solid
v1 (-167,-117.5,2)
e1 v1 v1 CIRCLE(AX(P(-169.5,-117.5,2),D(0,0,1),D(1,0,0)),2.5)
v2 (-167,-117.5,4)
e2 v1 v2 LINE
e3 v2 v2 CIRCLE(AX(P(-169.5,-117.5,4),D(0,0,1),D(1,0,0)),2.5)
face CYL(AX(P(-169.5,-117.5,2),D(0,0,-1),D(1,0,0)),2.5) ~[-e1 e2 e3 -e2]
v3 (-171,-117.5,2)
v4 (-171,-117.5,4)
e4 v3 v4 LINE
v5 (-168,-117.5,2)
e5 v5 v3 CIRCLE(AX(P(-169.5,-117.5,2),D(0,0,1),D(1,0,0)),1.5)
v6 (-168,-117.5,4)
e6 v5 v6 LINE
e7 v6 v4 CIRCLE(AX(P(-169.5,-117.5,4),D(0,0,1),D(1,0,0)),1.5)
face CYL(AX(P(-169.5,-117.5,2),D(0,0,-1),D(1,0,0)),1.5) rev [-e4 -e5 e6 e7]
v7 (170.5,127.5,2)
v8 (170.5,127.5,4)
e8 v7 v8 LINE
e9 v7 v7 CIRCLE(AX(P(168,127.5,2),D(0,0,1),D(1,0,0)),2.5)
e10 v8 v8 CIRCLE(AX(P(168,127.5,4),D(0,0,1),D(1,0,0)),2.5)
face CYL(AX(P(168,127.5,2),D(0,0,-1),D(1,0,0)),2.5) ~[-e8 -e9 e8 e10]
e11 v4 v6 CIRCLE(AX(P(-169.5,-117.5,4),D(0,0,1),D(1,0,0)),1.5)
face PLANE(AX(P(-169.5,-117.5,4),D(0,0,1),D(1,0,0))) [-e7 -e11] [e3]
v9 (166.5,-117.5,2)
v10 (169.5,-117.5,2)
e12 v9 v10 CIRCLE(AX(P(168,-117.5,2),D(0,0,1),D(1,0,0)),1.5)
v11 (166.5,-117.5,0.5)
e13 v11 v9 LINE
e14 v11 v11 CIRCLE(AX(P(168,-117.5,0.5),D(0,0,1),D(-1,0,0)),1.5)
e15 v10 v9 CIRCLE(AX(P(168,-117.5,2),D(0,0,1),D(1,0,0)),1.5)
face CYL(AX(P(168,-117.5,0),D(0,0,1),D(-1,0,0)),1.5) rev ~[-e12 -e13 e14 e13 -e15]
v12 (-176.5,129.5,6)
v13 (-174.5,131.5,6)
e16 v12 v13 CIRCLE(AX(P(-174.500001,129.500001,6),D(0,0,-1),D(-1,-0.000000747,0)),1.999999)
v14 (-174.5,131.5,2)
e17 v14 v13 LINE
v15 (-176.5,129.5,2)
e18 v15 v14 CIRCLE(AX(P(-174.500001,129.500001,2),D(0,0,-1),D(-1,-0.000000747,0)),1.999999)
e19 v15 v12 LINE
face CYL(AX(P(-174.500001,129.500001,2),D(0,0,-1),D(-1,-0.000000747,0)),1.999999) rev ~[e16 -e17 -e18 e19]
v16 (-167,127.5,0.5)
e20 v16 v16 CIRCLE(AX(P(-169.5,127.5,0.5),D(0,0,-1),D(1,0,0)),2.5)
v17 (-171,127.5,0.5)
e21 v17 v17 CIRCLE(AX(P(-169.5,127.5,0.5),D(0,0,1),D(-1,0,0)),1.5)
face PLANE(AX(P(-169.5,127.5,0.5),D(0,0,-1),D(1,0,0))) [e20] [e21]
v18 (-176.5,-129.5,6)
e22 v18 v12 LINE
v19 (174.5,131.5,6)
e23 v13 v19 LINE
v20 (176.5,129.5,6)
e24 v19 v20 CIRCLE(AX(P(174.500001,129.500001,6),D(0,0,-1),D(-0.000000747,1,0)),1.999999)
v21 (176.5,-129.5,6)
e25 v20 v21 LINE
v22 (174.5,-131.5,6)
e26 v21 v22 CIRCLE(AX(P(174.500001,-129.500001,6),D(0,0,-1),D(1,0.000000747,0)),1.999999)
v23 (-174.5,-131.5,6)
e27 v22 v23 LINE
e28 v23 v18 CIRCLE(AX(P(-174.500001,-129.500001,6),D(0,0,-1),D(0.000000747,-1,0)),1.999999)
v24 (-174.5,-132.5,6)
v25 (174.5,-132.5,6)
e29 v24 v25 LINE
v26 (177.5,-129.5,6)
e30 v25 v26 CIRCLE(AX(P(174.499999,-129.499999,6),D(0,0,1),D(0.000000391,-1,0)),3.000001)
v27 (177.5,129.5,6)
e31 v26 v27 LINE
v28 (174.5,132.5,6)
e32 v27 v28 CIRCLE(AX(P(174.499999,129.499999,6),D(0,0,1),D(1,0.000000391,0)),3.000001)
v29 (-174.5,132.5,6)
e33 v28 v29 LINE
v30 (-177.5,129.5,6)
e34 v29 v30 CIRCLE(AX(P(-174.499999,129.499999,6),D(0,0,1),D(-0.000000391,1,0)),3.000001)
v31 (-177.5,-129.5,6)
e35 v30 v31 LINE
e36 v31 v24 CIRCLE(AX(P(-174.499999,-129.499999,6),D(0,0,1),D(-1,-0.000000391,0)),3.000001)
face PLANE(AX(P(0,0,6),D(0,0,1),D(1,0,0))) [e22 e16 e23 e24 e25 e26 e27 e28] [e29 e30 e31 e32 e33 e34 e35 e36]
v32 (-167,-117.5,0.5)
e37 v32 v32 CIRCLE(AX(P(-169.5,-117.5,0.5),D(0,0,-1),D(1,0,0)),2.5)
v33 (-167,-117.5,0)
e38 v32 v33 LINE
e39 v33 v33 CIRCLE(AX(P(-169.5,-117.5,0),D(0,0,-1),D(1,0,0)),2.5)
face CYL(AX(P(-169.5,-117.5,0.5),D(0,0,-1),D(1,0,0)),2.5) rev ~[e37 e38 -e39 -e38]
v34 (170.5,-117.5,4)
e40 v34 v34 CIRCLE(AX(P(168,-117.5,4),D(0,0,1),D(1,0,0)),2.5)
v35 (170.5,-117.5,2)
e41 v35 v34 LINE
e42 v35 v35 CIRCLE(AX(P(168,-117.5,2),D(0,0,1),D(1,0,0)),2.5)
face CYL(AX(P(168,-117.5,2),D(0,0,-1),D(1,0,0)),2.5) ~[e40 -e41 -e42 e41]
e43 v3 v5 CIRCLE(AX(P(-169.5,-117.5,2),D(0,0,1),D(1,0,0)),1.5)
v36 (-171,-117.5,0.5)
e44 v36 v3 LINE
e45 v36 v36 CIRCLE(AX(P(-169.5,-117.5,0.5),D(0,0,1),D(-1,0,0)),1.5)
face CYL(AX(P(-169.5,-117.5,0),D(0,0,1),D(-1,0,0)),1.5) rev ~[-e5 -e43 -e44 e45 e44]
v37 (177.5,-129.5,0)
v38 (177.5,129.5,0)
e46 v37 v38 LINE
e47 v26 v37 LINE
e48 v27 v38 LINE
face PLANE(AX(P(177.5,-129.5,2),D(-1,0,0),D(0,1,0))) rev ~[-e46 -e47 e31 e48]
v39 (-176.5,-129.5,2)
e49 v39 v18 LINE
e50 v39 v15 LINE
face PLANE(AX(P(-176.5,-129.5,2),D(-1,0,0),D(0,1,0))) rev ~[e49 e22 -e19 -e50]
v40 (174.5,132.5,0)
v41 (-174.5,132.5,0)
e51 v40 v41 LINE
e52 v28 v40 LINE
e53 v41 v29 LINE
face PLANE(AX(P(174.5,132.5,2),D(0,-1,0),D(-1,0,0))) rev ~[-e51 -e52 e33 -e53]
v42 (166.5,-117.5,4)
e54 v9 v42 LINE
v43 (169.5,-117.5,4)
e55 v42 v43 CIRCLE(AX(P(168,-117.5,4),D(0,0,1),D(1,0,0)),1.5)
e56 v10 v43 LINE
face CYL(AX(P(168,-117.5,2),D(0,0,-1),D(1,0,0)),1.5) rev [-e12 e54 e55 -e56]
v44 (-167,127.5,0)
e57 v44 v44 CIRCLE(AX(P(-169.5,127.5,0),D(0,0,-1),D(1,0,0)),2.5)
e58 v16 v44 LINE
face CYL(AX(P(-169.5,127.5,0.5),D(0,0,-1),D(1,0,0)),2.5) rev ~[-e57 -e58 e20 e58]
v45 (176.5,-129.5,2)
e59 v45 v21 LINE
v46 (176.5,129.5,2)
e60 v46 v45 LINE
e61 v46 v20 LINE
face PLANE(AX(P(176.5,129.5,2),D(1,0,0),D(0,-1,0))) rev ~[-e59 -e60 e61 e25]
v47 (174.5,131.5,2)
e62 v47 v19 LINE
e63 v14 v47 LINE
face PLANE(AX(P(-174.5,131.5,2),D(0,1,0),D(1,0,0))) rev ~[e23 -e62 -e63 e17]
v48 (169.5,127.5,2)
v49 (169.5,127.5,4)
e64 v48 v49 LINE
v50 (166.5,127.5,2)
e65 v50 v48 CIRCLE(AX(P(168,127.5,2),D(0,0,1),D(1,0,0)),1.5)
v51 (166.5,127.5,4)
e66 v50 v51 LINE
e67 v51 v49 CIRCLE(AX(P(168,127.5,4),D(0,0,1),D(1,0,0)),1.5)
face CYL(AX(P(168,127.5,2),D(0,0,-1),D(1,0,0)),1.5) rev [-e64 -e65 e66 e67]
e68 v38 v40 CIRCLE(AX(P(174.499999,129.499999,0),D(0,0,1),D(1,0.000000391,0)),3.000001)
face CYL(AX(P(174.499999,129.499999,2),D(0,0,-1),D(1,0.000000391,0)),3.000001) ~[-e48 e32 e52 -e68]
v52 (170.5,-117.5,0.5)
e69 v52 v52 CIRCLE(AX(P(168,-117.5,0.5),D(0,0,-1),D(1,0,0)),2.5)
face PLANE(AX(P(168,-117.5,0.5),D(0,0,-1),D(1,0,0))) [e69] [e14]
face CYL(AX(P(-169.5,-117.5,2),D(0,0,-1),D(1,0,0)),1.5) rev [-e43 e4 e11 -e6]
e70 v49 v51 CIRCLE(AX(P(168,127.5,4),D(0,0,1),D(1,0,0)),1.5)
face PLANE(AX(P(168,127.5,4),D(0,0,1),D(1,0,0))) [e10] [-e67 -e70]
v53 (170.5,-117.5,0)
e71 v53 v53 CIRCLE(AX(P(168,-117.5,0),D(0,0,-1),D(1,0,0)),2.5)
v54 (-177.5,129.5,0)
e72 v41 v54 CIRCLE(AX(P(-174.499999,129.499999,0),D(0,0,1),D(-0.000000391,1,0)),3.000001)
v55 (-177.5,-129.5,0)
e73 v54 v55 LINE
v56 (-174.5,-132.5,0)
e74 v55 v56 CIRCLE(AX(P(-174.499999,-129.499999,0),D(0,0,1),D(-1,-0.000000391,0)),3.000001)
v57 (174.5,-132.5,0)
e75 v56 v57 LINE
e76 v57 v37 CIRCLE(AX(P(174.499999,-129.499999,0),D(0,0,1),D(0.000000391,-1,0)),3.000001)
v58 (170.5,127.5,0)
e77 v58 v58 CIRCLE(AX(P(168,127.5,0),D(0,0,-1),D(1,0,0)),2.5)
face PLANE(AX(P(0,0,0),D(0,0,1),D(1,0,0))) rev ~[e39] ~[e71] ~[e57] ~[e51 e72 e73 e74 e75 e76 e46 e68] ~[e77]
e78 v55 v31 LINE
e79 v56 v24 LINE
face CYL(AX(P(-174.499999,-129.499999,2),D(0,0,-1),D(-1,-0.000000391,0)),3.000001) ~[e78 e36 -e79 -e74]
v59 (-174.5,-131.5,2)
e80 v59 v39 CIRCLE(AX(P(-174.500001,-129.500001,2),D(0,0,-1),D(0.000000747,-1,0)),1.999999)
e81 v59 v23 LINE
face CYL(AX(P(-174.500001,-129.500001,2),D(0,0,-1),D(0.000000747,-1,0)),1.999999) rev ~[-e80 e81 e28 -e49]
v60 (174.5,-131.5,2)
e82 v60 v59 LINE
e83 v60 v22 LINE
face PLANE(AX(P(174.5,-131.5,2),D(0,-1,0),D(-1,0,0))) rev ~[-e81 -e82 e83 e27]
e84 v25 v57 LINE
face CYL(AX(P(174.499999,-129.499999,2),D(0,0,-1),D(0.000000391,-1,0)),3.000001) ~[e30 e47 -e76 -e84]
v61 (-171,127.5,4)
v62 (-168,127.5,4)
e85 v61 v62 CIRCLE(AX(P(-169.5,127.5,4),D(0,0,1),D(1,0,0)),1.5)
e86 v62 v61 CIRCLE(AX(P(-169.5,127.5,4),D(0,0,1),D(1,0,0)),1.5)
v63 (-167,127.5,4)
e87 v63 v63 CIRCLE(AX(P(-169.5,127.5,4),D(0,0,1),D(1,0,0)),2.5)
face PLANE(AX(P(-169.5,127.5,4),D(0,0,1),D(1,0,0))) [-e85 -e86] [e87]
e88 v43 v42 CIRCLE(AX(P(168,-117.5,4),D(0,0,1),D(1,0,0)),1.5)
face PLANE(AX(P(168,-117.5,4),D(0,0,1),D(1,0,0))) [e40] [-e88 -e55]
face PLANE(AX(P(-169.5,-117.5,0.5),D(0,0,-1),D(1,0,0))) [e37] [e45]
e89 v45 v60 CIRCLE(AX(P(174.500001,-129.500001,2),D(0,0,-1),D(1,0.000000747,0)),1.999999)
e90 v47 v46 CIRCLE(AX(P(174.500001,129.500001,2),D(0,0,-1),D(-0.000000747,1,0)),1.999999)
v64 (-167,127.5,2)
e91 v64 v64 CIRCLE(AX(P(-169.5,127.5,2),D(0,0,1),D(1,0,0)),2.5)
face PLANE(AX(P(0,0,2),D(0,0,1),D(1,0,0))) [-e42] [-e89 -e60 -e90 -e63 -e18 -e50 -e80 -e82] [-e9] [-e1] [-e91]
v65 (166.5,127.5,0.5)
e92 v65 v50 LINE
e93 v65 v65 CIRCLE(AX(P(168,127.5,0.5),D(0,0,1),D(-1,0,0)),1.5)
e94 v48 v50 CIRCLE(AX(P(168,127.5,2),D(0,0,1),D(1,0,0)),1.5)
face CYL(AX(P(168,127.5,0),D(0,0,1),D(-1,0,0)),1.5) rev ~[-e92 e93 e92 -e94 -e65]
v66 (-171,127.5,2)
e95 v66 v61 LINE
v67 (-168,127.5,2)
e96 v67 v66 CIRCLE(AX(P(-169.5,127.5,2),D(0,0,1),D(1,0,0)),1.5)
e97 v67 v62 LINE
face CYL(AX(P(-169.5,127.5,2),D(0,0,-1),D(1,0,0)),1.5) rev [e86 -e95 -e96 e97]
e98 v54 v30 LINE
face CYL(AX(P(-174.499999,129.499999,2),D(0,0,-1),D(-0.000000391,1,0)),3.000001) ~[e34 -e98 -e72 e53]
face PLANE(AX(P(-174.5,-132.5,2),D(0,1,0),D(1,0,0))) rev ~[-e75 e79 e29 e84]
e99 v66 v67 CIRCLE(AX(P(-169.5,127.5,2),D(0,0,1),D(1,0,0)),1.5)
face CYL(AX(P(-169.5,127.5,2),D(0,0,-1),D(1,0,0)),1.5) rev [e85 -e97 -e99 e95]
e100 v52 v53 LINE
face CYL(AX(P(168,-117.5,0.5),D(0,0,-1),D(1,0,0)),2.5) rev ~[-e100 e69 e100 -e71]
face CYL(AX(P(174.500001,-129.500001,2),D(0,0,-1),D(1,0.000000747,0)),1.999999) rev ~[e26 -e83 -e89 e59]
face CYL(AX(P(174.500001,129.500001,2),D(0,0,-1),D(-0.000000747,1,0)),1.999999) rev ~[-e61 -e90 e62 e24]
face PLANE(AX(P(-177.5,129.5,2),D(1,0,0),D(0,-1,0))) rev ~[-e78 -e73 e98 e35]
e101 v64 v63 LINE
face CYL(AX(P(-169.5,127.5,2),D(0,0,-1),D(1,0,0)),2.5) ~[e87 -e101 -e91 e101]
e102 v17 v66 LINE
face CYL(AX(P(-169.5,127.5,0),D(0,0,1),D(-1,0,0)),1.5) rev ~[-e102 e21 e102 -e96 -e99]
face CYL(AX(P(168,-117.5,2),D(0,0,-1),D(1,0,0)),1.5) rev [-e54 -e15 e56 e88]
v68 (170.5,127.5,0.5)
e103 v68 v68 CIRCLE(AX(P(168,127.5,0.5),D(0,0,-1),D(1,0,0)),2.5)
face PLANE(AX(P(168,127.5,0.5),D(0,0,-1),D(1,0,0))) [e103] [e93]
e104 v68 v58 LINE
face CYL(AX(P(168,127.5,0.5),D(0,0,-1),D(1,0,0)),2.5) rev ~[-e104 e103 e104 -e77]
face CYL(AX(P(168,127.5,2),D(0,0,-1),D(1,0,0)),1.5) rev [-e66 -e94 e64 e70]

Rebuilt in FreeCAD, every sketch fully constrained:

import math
import FreeCAD as App
import Part
import Sketcher

V = App.Vector

doc = App.newDocument("Part")
body = doc.addObject("PartDesign::Body", "Body")

# Sketch on XY plane
sketch1 = doc.addObject("Sketcher::SketchObject", "Sketch")
body.addObject(sketch1)
sketch1.AttachmentSupport = (doc.XY_Plane, [""])
sketch1.MapMode = "FlatFace"
sketch1.addGeometry([
    Part.LineSegment(V(-174.5, -132.5, 0), V(174.5, -132.5, 0)),  # 0
    Part.ArcOfCircle(Part.Circle(V(174.499999, -129.499999, 0), V(0, 0, 1), 3.000001), math.radians(-89.999978), math.radians(-0.000022)),  # 1
    Part.LineSegment(V(177.5, -129.5, 0), V(177.5, 129.5, 0)),  # 2
    Part.ArcOfCircle(Part.Circle(V(174.499999, 129.499999, 0), V(0, 0, 1), 3.000001), math.radians(0.000022), math.radians(89.999978)),  # 3
    Part.LineSegment(V(174.5, 132.5, 0), V(-174.5, 132.5, 0)),  # 4
    Part.ArcOfCircle(Part.Circle(V(-174.499999, 129.499999, 0), V(0, 0, 1), 3.000001), math.radians(90.000022), math.radians(179.999978)),  # 5
    Part.LineSegment(V(-177.5, 129.5, 0), V(-177.5, -129.5, 0)),  # 6
    Part.ArcOfCircle(Part.Circle(V(-174.499999, -129.499999, 0), V(0, 0, 1), 3.000001), math.radians(-179.999978), math.radians(-90.000022)),  # 7
], False)
sketch1.addConstraint([
    Sketcher.Constraint("Tangent", 0, 2, 1, 1),
    Sketcher.Constraint("Tangent", 1, 2, 2, 1),
    Sketcher.Constraint("Tangent", 2, 2, 3, 1),
    Sketcher.Constraint("Tangent", 3, 2, 4, 1),
    Sketcher.Constraint("Tangent", 4, 2, 5, 1),
    Sketcher.Constraint("Tangent", 5, 2, 6, 1),
    Sketcher.Constraint("Tangent", 6, 2, 7, 1),
    Sketcher.Constraint("Tangent", 7, 2, 0, 1),
    Sketcher.Constraint("Horizontal", 0),
    Sketcher.Constraint("Vertical", 2),
    Sketcher.Constraint("Horizontal", 4),
    Sketcher.Constraint("Vertical", 6),
    Sketcher.Constraint("Equal", 1, 3),
    Sketcher.Constraint("Equal", 3, 5),
    Sketcher.Constraint("Equal", 5, 7),
    Sketcher.Constraint("Symmetric", 1, 3, 5, 3, -1, 1),
    Sketcher.Constraint("Radius", 1, 3.000001),
    Sketcher.Constraint("DistanceX", 0, 1, 0, 2, 349.0),
    Sketcher.Constraint("DistanceY", 2, 1, 2, 2, 259.0),
])
pad1 = doc.addObject("PartDesign::Pad", "Pad")
body.addObject(pad1)
pad1.Profile = sketch1
pad1.Length = 2

# Sketch on XY plane
sketch2 = doc.addObject("Sketcher::SketchObject", "Sketch001")
body.addObject(sketch2)
sketch2.AttachmentSupport = (doc.XY_Plane, [""])
sketch2.MapMode = "FlatFace"
sketch2.AttachmentOffset = App.Placement(V(0, 0, 2), App.Rotation())
sketch2.addGeometry([
    Part.Circle(V(-169.5, 127.5, 0), V(0, 0, 1), 2.5),  # 0
    Part.Circle(V(-169.5, 127.5, 0), V(0, 0, 1), 1.5),  # 1
    Part.Circle(V(168, 127.5, 0), V(0, 0, 1), 2.5),  # 2
    Part.Circle(V(168, 127.5, 0), V(0, 0, 1), 1.5),  # 3
    Part.Circle(V(-169.5, -117.5, 0), V(0, 0, 1), 2.5),  # 4
    Part.Circle(V(-169.5, -117.5, 0), V(0, 0, 1), 1.5),  # 5
    Part.Circle(V(168, -117.5, 0), V(0, 0, 1), 2.5),  # 6
    Part.Circle(V(168, -117.5, 0), V(0, 0, 1), 1.5),  # 7
], False)
sketch2.addConstraint([
    Sketcher.Constraint("Coincident", 1, 3, 0, 3),
    Sketcher.Constraint("Coincident", 3, 3, 2, 3),
    Sketcher.Constraint("Coincident", 5, 3, 4, 3),
    Sketcher.Constraint("Coincident", 7, 3, 6, 3),
    Sketcher.Constraint("Equal", 0, 2),
    Sketcher.Constraint("Equal", 1, 3),
    Sketcher.Constraint("Equal", 2, 4),
    Sketcher.Constraint("Equal", 3, 5),
    Sketcher.Constraint("Equal", 4, 6),
    Sketcher.Constraint("Equal", 5, 7),
    Sketcher.Constraint("Horizontal", 1, 3, 2, 3),
    Sketcher.Constraint("Horizontal", 5, 3, 6, 3),
    Sketcher.Constraint("Vertical", 1, 3, 4, 3),
    Sketcher.Constraint("Vertical", 3, 3, 6, 3),
    Sketcher.Constraint("Diameter", 0, 5.0),
    Sketcher.Constraint("Diameter", 1, 3.0),
    Sketcher.Constraint("DistanceX", -1, 1, 2, 3, 168.0),
    Sketcher.Constraint("DistanceY", 4, 3, 0, 3, 245.0),
    Sketcher.Constraint("DistanceX", 0, 3, -1, 1, 169.5),
    Sketcher.Constraint("DistanceY", -1, 1, 0, 3, 127.5),
])
pad2 = doc.addObject("PartDesign::Pad", "Pad001")
body.addObject(pad2)
pad2.Profile = sketch2
pad2.Length = 2

# Sketch on XY plane
sketch3 = doc.addObject("Sketcher::SketchObject", "Sketch002")
body.addObject(sketch3)
sketch3.AttachmentSupport = (doc.XY_Plane, [""])
sketch3.MapMode = "FlatFace"
sketch3.AttachmentOffset = App.Placement(V(0, 0, 2), App.Rotation())
sketch3.addGeometry([
    Part.LineSegment(V(174.5, 132.5, 0), V(-174.5, 132.5, 0)),  # 0
    Part.ArcOfCircle(Part.Circle(V(-174.499999, 129.499999, 0), V(0, 0, 1), 3.000001), math.radians(90.000022), math.radians(179.999978)),  # 1
    Part.LineSegment(V(-177.5, 129.5, 0), V(-177.5, -129.5, 0)),  # 2
    Part.ArcOfCircle(Part.Circle(V(-174.499999, -129.499999, 0), V(0, 0, 1), 3.000001), math.radians(-179.999978), math.radians(-90.000022)),  # 3
    Part.LineSegment(V(-174.5, -132.5, 0), V(174.5, -132.5, 0)),  # 4
    Part.ArcOfCircle(Part.Circle(V(174.499999, -129.499999, 0), V(0, 0, 1), 3.000001), math.radians(-89.999978), math.radians(-0.000022)),  # 5
    Part.LineSegment(V(177.5, -129.5, 0), V(177.5, 129.5, 0)),  # 6
    Part.ArcOfCircle(Part.Circle(V(174.499999, 129.499999, 0), V(0, 0, 1), 3.000001), math.radians(0.000022), math.radians(89.999978)),  # 7
    Part.LineSegment(V(-176.5, -129.5, 0), V(-176.5, 129.5, 0)),  # 8
    Part.ArcOfCircle(Part.Circle(V(-174.500001, 129.500001, 0), V(0, 0, 1), 1.999999), math.radians(89.999957), math.radians(180.000043)),  # 9
    Part.LineSegment(V(-174.5, 131.5, 0), V(174.5, 131.5, 0)),  # 10
    Part.ArcOfCircle(Part.Circle(V(174.500001, 129.500001, 0), V(0, 0, 1), 1.999999), math.radians(-0.000043), math.radians(90.000043)),  # 11
    Part.LineSegment(V(176.5, 129.5, 0), V(176.5, -129.5, 0)),  # 12
    Part.ArcOfCircle(Part.Circle(V(174.500001, -129.500001, 0), V(0, 0, 1), 1.999999), math.radians(-90.000043), math.radians(0.000043)),  # 13
    Part.LineSegment(V(174.5, -131.5, 0), V(-174.5, -131.5, 0)),  # 14
    Part.ArcOfCircle(Part.Circle(V(-174.500001, -129.500001, 0), V(0, 0, 1), 1.999999), math.radians(179.999957), math.radians(270.000043)),  # 15
], False)
sketch3.addConstraint([
    Sketcher.Constraint("Tangent", 0, 2, 1, 1),
    Sketcher.Constraint("Tangent", 1, 2, 2, 1),
    Sketcher.Constraint("Tangent", 2, 2, 3, 1),
    Sketcher.Constraint("Tangent", 3, 2, 4, 1),
    Sketcher.Constraint("Tangent", 4, 2, 5, 1),
    Sketcher.Constraint("Tangent", 5, 2, 6, 1),
    Sketcher.Constraint("Tangent", 6, 2, 7, 1),
    Sketcher.Constraint("Tangent", 7, 2, 0, 1),
    Sketcher.Constraint("Tangent", 8, 2, 9, 2),
    Sketcher.Constraint("Tangent", 9, 1, 10, 1),
    Sketcher.Constraint("Tangent", 10, 2, 11, 2),
    Sketcher.Constraint("Tangent", 11, 1, 12, 1),
    Sketcher.Constraint("Tangent", 12, 2, 13, 2),
    Sketcher.Constraint("Tangent", 13, 1, 14, 1),
    Sketcher.Constraint("Tangent", 14, 2, 15, 2),
    Sketcher.Constraint("Tangent", 15, 1, 8, 1),
    Sketcher.Constraint("Horizontal", 0),
    Sketcher.Constraint("Vertical", 2),
    Sketcher.Constraint("Horizontal", 4),
    Sketcher.Constraint("Vertical", 6),
    Sketcher.Constraint("Vertical", 8),
    Sketcher.Constraint("Horizontal", 10),
    Sketcher.Constraint("Vertical", 12),
    Sketcher.Constraint("Horizontal", 14),
    Sketcher.Constraint("Coincident", 9, 3, 1, 3),
    Sketcher.Constraint("Coincident", 11, 3, 7, 3),
    Sketcher.Constraint("Coincident", 13, 3, 5, 3),
    Sketcher.Constraint("Equal", 1, 3),
    Sketcher.Constraint("Equal", 3, 5),
    Sketcher.Constraint("Equal", 5, 7),
    Sketcher.Constraint("Equal", 13, 15),
    Sketcher.Constraint("Symmetric", 1, 3, 5, 3, -1, 1),
    Sketcher.Constraint("Radius", 1, 3.000001),
    Sketcher.Constraint("Radius", 9, 1.999999),
    Sketcher.Constraint("DistanceX", 0, 2, 0, 1, 349.0),
    Sketcher.Constraint("DistanceY", 2, 2, 2, 1, 259.0),
])
pad3 = doc.addObject("PartDesign::Pad", "Pad002")
body.addObject(pad3)
pad3.Profile = sketch3
pad3.Length = 4

# Sketch on XY plane
sketch4 = doc.addObject("Sketcher::SketchObject", "Sketch003")
body.addObject(sketch4)
sketch4.AttachmentSupport = (doc.XY_Plane, [""])
sketch4.MapMode = "FlatFace"
sketch4.addGeometry([
    Part.Circle(V(-169.5, 127.5, 0), V(0, 0, 1), 1.5),
    Part.Circle(V(168, 127.5, 0), V(0, 0, 1), 1.5),
    Part.Circle(V(168, -117.5, 0), V(0, 0, 1), 1.5),
    Part.Circle(V(-169.5, -117.5, 0), V(0, 0, 1), 1.5),
], False)
sketch4.addConstraint([
    Sketcher.Constraint("Equal", 0, 1),
    Sketcher.Constraint("Equal", 1, 2),
    Sketcher.Constraint("Equal", 2, 3),
    Sketcher.Constraint("Horizontal", 0, 3, 1, 3),
    Sketcher.Constraint("Horizontal", 2, 3, 3, 3),
    Sketcher.Constraint("Vertical", 1, 3, 2, 3),
    Sketcher.Constraint("Vertical", 0, 3, 3, 3),
    Sketcher.Constraint("Diameter", 0, 3.0),
    Sketcher.Constraint("DistanceX", -1, 1, 1, 3, 168.0),
    Sketcher.Constraint("DistanceY", 2, 3, 1, 3, 245.0),
    Sketcher.Constraint("DistanceX", 0, 3, -1, 1, 169.5),
    Sketcher.Constraint("DistanceY", -1, 1, 0, 3, 127.5),
])
doc.recompute()
hole = doc.addObject("PartDesign::Hole", "Hole")
body.addObject(hole)
hole.Profile = sketch4
hole.ThreadType = "None"
hole.Diameter = 3
hole.DepthType = "ThroughAll"
hole.HoleCutType = "Counterbore"
hole.HoleCutDiameter = 5
hole.HoleCutDepth = 0.5
hole.Reversed = True

doc.recompute()
